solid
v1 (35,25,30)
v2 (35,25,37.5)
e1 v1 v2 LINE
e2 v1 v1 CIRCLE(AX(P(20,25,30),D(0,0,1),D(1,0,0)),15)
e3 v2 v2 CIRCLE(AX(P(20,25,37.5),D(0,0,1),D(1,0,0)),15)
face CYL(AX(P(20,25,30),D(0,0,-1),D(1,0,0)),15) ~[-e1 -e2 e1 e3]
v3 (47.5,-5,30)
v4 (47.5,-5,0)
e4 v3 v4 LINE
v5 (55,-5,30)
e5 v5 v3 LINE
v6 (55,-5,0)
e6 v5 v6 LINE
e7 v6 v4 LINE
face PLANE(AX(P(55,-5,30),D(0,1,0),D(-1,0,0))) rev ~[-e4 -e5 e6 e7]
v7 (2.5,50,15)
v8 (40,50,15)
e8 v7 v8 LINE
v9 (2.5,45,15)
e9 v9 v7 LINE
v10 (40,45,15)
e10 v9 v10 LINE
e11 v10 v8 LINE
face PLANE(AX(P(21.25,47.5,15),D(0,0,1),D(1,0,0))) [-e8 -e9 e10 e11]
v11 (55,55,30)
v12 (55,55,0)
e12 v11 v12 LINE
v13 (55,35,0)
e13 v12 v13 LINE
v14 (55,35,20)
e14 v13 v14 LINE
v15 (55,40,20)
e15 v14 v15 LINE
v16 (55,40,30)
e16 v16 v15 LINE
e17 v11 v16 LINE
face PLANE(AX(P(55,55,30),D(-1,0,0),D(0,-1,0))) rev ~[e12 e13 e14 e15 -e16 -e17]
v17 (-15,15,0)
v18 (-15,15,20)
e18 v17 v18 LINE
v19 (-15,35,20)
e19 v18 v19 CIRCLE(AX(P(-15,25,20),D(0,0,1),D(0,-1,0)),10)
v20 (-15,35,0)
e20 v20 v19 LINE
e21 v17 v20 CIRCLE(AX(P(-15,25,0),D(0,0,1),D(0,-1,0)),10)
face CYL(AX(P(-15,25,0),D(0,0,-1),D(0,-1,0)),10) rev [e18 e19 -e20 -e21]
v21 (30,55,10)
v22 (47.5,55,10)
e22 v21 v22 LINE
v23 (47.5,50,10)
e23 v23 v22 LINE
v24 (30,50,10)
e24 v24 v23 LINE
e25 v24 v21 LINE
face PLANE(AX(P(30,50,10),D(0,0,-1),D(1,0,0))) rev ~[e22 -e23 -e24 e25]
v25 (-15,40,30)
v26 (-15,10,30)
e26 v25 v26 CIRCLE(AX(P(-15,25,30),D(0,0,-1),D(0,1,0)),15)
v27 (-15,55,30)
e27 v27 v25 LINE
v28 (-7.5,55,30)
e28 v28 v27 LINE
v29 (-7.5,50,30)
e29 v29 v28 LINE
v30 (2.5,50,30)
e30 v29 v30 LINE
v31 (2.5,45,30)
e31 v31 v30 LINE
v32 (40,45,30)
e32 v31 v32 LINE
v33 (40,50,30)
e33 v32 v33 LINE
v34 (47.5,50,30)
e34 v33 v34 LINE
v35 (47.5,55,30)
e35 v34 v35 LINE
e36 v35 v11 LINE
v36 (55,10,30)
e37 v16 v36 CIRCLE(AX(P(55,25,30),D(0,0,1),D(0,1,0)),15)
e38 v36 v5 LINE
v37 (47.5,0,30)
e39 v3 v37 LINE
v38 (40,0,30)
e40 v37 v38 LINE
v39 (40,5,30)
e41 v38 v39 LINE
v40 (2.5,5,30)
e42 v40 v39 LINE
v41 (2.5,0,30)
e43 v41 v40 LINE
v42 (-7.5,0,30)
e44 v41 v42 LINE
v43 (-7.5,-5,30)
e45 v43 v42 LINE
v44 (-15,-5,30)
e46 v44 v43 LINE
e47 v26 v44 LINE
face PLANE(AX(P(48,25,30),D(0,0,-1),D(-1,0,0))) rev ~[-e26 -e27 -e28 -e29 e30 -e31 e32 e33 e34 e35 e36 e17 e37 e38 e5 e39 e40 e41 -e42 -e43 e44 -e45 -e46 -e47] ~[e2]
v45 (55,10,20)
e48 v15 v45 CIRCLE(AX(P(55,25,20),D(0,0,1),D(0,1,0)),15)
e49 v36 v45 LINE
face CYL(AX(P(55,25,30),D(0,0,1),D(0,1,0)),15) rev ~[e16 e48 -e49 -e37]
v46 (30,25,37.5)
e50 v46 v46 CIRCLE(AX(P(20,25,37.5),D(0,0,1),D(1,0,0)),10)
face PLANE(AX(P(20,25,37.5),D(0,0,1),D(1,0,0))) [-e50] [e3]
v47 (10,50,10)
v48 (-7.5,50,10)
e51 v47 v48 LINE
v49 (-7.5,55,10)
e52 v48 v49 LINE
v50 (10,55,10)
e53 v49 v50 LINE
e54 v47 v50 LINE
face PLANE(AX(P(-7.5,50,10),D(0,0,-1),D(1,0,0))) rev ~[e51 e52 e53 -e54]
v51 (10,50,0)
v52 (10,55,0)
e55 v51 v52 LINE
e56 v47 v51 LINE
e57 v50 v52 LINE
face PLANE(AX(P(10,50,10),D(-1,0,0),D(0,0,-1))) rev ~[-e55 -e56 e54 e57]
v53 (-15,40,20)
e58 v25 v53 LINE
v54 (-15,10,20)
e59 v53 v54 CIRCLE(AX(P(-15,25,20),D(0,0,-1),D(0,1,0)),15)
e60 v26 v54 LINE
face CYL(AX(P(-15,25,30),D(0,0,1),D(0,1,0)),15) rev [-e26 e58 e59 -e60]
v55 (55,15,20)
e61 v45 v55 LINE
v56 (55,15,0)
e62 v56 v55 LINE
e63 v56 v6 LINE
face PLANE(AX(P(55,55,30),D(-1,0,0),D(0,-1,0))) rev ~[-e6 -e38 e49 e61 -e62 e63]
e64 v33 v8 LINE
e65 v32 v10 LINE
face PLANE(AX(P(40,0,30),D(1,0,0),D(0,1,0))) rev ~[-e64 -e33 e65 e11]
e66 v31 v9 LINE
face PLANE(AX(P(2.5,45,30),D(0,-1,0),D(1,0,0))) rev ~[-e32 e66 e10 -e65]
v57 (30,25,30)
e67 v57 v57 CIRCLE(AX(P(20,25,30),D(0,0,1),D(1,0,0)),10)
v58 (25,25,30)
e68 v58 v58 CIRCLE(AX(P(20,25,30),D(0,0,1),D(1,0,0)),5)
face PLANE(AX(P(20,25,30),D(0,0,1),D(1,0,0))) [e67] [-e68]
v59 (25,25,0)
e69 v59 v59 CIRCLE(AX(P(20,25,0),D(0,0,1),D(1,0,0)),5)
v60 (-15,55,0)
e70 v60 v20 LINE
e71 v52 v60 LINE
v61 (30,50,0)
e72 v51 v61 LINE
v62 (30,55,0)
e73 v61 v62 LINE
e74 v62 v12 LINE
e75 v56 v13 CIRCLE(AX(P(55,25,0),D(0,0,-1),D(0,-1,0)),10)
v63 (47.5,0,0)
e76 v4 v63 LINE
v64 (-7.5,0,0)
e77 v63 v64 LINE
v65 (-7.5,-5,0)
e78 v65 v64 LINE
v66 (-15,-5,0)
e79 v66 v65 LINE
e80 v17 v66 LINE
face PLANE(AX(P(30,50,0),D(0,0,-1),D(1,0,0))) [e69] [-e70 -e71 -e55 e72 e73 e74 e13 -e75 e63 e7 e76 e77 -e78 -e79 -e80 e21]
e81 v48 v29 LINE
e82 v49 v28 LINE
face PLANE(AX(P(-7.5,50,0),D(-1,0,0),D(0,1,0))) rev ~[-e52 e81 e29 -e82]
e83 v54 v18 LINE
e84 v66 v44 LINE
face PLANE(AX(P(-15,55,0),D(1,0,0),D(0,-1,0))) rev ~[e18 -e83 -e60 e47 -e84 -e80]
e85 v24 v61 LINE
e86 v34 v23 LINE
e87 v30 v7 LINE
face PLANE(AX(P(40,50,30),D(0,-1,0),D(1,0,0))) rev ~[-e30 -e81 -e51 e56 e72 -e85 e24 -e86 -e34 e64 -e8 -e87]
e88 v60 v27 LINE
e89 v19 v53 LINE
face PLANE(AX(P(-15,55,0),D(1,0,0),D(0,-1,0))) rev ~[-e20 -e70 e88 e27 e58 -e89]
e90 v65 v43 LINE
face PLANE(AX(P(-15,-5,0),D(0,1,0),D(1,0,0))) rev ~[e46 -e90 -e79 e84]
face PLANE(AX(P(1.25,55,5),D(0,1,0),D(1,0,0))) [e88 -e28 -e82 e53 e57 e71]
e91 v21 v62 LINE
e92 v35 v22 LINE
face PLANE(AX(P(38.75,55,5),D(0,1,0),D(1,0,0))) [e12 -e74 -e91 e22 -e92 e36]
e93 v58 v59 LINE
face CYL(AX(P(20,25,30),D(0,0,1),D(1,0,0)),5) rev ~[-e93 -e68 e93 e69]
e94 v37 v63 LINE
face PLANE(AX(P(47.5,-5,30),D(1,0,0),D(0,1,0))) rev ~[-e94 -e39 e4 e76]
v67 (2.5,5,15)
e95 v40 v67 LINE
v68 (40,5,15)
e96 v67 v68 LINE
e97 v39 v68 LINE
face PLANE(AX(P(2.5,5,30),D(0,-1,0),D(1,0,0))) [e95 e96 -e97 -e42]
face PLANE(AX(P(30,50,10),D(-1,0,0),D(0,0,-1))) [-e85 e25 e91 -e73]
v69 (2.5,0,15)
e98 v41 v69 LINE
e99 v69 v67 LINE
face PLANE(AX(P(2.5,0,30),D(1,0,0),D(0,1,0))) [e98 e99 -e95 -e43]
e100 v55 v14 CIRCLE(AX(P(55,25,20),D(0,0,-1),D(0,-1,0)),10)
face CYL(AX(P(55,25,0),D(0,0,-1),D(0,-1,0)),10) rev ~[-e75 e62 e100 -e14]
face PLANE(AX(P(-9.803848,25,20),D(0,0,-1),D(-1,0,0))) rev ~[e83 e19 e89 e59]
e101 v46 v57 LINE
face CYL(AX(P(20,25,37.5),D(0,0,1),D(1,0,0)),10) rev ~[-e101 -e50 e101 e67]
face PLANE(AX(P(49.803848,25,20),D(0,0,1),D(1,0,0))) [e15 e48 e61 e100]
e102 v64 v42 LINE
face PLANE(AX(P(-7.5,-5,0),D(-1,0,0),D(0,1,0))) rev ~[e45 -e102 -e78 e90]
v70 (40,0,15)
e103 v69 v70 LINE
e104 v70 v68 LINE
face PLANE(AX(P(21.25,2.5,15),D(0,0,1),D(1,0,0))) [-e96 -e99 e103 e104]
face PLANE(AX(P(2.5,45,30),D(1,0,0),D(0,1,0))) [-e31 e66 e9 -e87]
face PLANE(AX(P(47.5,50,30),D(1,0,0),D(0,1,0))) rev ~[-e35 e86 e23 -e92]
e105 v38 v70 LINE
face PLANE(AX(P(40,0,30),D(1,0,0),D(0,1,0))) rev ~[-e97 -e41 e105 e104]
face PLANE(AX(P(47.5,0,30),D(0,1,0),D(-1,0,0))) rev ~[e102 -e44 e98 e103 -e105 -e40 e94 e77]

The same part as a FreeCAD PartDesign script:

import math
import FreeCAD as App
import Part
import Sketcher
from FreeCAD import Vector
Q = App.Units.Quantity


def add_polygon(sketch, points):
    """Adds a closed chain of lines whose ends are joined by coincident constraints."""
    first, n = sketch.GeometryCount, len(points)
    for a, b in zip(points, points[1:] + points[:1]):
        sketch.addGeometry(Part.LineSegment(App.Vector(*a, 0), App.Vector(*b, 0)), False)
    for i in range(n):
        sketch.addConstraint(Sketcher.Constraint("Coincident", first + i, 2, first + (i + 1) % n, 1))

doc = App.newDocument("Part")
params = doc.addObject("Spreadsheet::Sheet", "Params")
for row, (alias, value) in enumerate([
    ("sketch1_height", "5 mm"),
    ("sketch1_height2", "50 mm"),
    ("sketch1_width", "7.5 mm"),
    ("pad1_length", "30 mm"),
    ("sketch2_radius", "10 mm"),
    ("pocket1_length", "20 mm"),
    ("sketch3_height", "10 mm"),
    ("sketch3_width", "17.5 mm"),
    ("pad2_length", "5 mm"),
    ("sketch4_width", "40 mm"),
    ("sketch4_height", "50 mm"),
    ("pad3_length", "30 mm"),
    ("sketch5_height", "5 mm"),
    ("sketch5_width", "37.5 mm"),
    ("pocket2_length", "15 mm"),
    ("sketch6_height", "5 mm"),
    ("sketch6_width", "37.5 mm"),
    ("pocket3_length", "15 mm"),
    ("sketch7_radius", "15 mm"),
    ("pocket4_length", "10 mm"),
    ("sketch8_diameter", "30 mm"),
    ("pad4_length", "7.5 mm"),
    ("sketch9_diameter", "20 mm"),
    ("pocket5_length", "7.5 mm"),
    ("sketch10_diameter", "10 mm"),
    ("pocket6_length", "153.5 mm"),
    ("sketch11_height", "60 mm"),
    ("sketch11_height2", "5 mm"),
    ("sketch11_width", "7.5 mm"),
    ("pad5_length", "30 mm"),
    ("sketch12_height", "10 mm"),
    ("sketch12_width", "17.5 mm"),
    ("pad6_length", "5 mm"),
    ("sketch13_radius", "10 mm"),
    ("pocket7_length", "20 mm"),
    ("sketch14_radius", "15 mm"),
    ("pocket8_length", "10 mm"),
], start=1):
    params.set(f"A{row}", alias)
    params.set(f"B{row}", "=" + value)
    params.setAlias(f"B{row}", alias)

body = doc.addObject("PartDesign::Body", "Body")

# Sketch on XY plane
sketch1 = body.newObject("Sketcher::SketchObject", "Sketch")
sketch1.AttachmentSupport = (doc.getObject("XY_Plane"), [""])
sketch1.MapMode = "FlatFace"
add_polygon(sketch1, [(-15, -5), (-8, -5), (-8, 0), (0, 0), (0, 50), (-8, 50), (-8, 55), (-15, 55)])  # lines 0-7
sketch1.addConstraint(Sketcher.Constraint("Horizontal", 0))
sketch1.addConstraint(Sketcher.Constraint("Vertical", 1))
sketch1.addConstraint(Sketcher.Constraint("Horizontal", 2))
sketch1.addConstraint(Sketcher.Constraint("Vertical", 3))
sketch1.addConstraint(Sketcher.Constraint("Horizontal", 4))
sketch1.addConstraint(Sketcher.Constraint("Vertical", 5))
sketch1.addConstraint(Sketcher.Constraint("Horizontal", 6))
sketch1.addConstraint(Sketcher.Constraint("Vertical", 7))
sketch1.addConstraint(Sketcher.Constraint("Coincident", 2, 2, -1, 1))
sketch1.addConstraint(Sketcher.Constraint("Vertical", 1, 2, 4, 2))
sketch1.addConstraint(Sketcher.Constraint("Equal", 0, 2))
sketch1.addConstraint(Sketcher.Constraint("Equal", 1, 5))
sketch1.addConstraint(Sketcher.Constraint("DistanceY", 1, 1, 1, 2, Q("5 mm")))
sketch1.addConstraint(Sketcher.Constraint("DistanceY", 3, 1, 3, 2, Q("50 mm")))
sketch1.addConstraint(Sketcher.Constraint("DistanceX", 0, 1, 0, 2, Q("7.5 mm")))
sketch1.setExpression("Constraints[20]", "Params.sketch1_height")
sketch1.setExpression("Constraints[21]", "Params.sketch1_height2")
sketch1.setExpression("Constraints[22]", "Params.sketch1_width")
pad1 = body.newObject("PartDesign::Pad", "Pad")
pad1.Profile = sketch1
pad1.setExpression("Length", "Params.pad1_length")

# Sketch on XY plane
sketch2 = body.newObject("Sketcher::SketchObject", "Sketch001")
sketch2.AttachmentSupport = (doc.getObject("XY_Plane"), [""])
sketch2.MapMode = "FlatFace"
sketch2.addGeometry(Part.LineSegment(Vector(-15, 15, 0), Vector(-15, 35, 0)), False)
sketch2.addGeometry(Part.ArcOfCircle(Part.Circle(Vector(-15, 25, 0), Vector(0, 0, 1), 10), math.radians(-90), math.radians(90)), False)
sketch2.addConstraint(Sketcher.Constraint("Coincident", 0, 1, 1, 1))
sketch2.addConstraint(Sketcher.Constraint("Coincident", 1, 2, 0, 2))
sketch2.addConstraint(Sketcher.Constraint("Vertical", 0))
sketch2.addConstraint(Sketcher.Constraint("Vertical", 1, 3, 0, 1))
sketch2.addConstraint(Sketcher.Constraint("Radius", 1, Q("10 mm")))
sketch2.addConstraint(Sketcher.Constraint("DistanceX", 1, 3, -1, 1, Q("15 mm")))
sketch2.addConstraint(Sketcher.Constraint("DistanceY", -1, 1, 1, 3, Q("25 mm")))
sketch2.setExpression("Constraints[4]", "Params.sketch2_radius")
pocket1 = body.newObject("PartDesign::Pocket", "Pocket")
pocket1.Profile = sketch2
pocket1.setExpression("Length", "Params.pocket1_length")
pocket1.Reversed = True

# Sketch on XZ plane
sketch3 = body.newObject("Sketcher::SketchObject", "Sketch002")
sketch3.AttachmentSupport = (doc.getObject("XZ_Plane"), [""])
sketch3.MapMode = "FlatFace"
sketch3.AttachmentOffset = App.Placement(Vector(0, 0, -50), App.Rotation())
add_polygon(sketch3, [(-8, 0), (-8, 10), (10, 10), (10, 0)])  # lines 0-3
sketch3.addConstraint(Sketcher.Constraint("Vertical", 0))
sketch3.addConstraint(Sketcher.Constraint("Horizontal", 1))
sketch3.addConstraint(Sketcher.Constraint("Vertical", 2))
sketch3.addConstraint(Sketcher.Constraint("Horizontal", 3))
sketch3.addConstraint(Sketcher.Constraint("PointOnObject", 2, 2, -1))
sketch3.addConstraint(Sketcher.Constraint("DistanceY", 0, 1, 0, 2, Q("10 mm")))
sketch3.addConstraint(Sketcher.Constraint("DistanceX", 1, 1, 1, 2, Q("17.5 mm")))
sketch3.addConstraint(Sketcher.Constraint("DistanceX", -1, 1, 1, 2, Q("10 mm")))
sketch3.setExpression("Constraints[9]", "Params.sketch3_height")
sketch3.setExpression("Constraints[10]", "Params.sketch3_width")
pad2 = body.newObject("PartDesign::Pad", "Pad001")
pad2.Profile = sketch3
pad2.setExpression("Length", "Params.pad2_length")
pad2.Reversed = True

# Sketch on XY plane
sketch4 = body.newObject("Sketcher::SketchObject", "Sketch003")
sketch4.AttachmentSupport = (doc.getObject("XY_Plane"), [""])
sketch4.MapMode = "FlatFace"
add_polygon(sketch4, [(40, 50), (40, 0), (0, 0), (0, 50)])  # lines 0-3
sketch4.addConstraint(Sketcher.Constraint("Vertical", 0))
sketch4.addConstraint(Sketcher.Constraint("Horizontal", 1))
sketch4.addConstraint(Sketcher.Constraint("Vertical", 2))
sketch4.addConstraint(Sketcher.Constraint("Horizontal", 3))
sketch4.addConstraint(Sketcher.Constraint("Coincident", 1, 2, -1, 1))
sketch4.addConstraint(Sketcher.Constraint("DistanceX", 1, 2, 1, 1, Q("40 mm")))
sketch4.addConstraint(Sketcher.Constraint("DistanceY", 0, 2, 0, 1, Q("50 mm")))
sketch4.setExpression("Constraints[9]", "Params.sketch4_width")
sketch4.setExpression("Constraints[10]", "Params.sketch4_height")
pad3 = body.newObject("PartDesign::Pad", "Pad002")
pad3.Profile = sketch4
pad3.setExpression("Length", "Params.pad3_length")

# Sketch on XY plane
sketch5 = body.newObject("Sketcher::SketchObject", "Sketch004")
sketch5.AttachmentSupport = (doc.getObject("XY_Plane"), [""])
sketch5.MapMode = "FlatFace"
sketch5.AttachmentOffset = App.Placement(Vector(0, 0, 30), App.Rotation())
add_polygon(sketch5, [(2, 50), (2, 45), (40, 45), (40, 50)])  # lines 0-3
sketch5.addConstraint(Sketcher.Constraint("Vertical", 0))
sketch5.addConstraint(Sketcher.Constraint("Horizontal", 1))
sketch5.addConstraint(Sketcher.Constraint("Vertical", 2))
sketch5.addConstraint(Sketcher.Constraint("Horizontal", 3))
sketch5.addConstraint(Sketcher.Constraint("DistanceY", 0, 2, 0, 1, Q("5 mm")))
sketch5.addConstraint(Sketcher.Constraint("DistanceX", 1, 1, 1, 2, Q("37.5 mm")))
sketch5.addConstraint(Sketcher.Constraint("DistanceY", -1, 1, 0, 2, Q("45 mm")))
sketch5.addConstraint(Sketcher.Constraint("DistanceX", -1, 1, 1, 2, Q("40 mm")))
sketch5.setExpression("Constraints[8]", "Params.sketch5_height")
sketch5.setExpression("Constraints[9]", "Params.sketch5_width")
pocket2 = body.newObject("PartDesign::Pocket", "Pocket001")
pocket2.Profile = sketch5
pocket2.setExpression("Length", "Params.pocket2_length")

# Sketch on XY plane
sketch6 = body.newObject("Sketcher::SketchObject", "Sketch005")
sketch6.AttachmentSupport = (doc.getObject("XY_Plane"), [""])
sketch6.MapMode = "FlatFace"
sketch6.AttachmentOffset = App.Placement(Vector(0, 0, 30), App.Rotation())
add_polygon(sketch6, [(2, 5), (2, 0), (40, 0), (40, 5)])  # lines 0-3
sketch6.addConstraint(Sketcher.Constraint("Vertical", 0))
sketch6.addConstraint(Sketcher.Constraint("Horizontal", 1))
sketch6.addConstraint(Sketcher.Constraint("Vertical", 2))
sketch6.addConstraint(Sketcher.Constraint("Horizontal", 3))
sketch6.addConstraint(Sketcher.Constraint("PointOnObject", 0, 2, -1))
sketch6.addConstraint(Sketcher.Constraint("DistanceY", 0, 2, 0, 1, Q("5 mm")))
sketch6.addConstraint(Sketcher.Constraint("DistanceX", 1, 1, 1, 2, Q("37.5 mm")))
sketch6.addConstraint(Sketcher.Constraint("DistanceX", -1, 1, 1, 2, Q("40 mm")))
sketch6.setExpression("Constraints[9]", "Params.sketch6_height")
sketch6.setExpression("Constraints[10]", "Params.sketch6_width")
pocket3 = body.newObject("PartDesign::Pocket", "Pocket002")
pocket3.Profile = sketch6
pocket3.setExpression("Length", "Params.pocket3_length")

# Sketch on XY plane
sketch7 = body.newObject("Sketcher::SketchObject", "Sketch006")
sketch7.AttachmentSupport = (doc.getObject("XY_Plane"), [""])
sketch7.MapMode = "FlatFace"
sketch7.AttachmentOffset = App.Placement(Vector(0, 0, 30), App.Rotation())
sketch7.addGeometry(Part.LineSegment(Vector(-15, 40, 0), Vector(-15, 10, 0)), False)
sketch7.addGeometry(Part.ArcOfCircle(Part.Circle(Vector(-15, 25, 0), Vector(0, 0, 1), 15), math.radians(-90), math.radians(90)), False)
sketch7.addConstraint(Sketcher.Constraint("Coincident", 0, 1, 1, 2))
sketch7.addConstraint(Sketcher.Constraint("Coincident", 1, 1, 0, 2))
sketch7.addConstraint(Sketcher.Constraint("Vertical", 0))
sketch7.addConstraint(Sketcher.Constraint("Vertical", 1, 3, 0, 1))
sketch7.addConstraint(Sketcher.Constraint("Radius", 1, Q("15 mm")))
sketch7.addConstraint(Sketcher.Constraint("DistanceX", 1, 3, -1, 1, Q("15 mm")))
sketch7.addConstraint(Sketcher.Constraint("DistanceY", -1, 1, 1, 3, Q("25 mm")))
sketch7.setExpression("Constraints[4]", "Params.sketch7_radius")
pocket4 = body.newObject("PartDesign::Pocket", "Pocket003")
pocket4.Profile = sketch7
pocket4.setExpression("Length", "Params.pocket4_length")

# Sketch on XY plane
sketch8 = body.newObject("Sketcher::SketchObject", "Sketch007")
sketch8.AttachmentSupport = (doc.getObject("XY_Plane"), [""])
sketch8.MapMode = "FlatFace"
sketch8.AttachmentOffset = App.Placement(Vector(0, 0, 30), App.Rotation())
sketch8.addGeometry(Part.Circle(Vector(20, 25, 0), Vector(0, 0, 1), 15), False)
sketch8.addConstraint(Sketcher.Constraint("Diameter", 0, Q("30 mm")))
sketch8.addConstraint(Sketcher.Constraint("DistanceX", -1, 1, 0, 3, Q("20 mm")))
sketch8.addConstraint(Sketcher.Constraint("DistanceY", -1, 1, 0, 3, Q("25 mm")))
sketch8.setExpression("Constraints[0]", "Params.sketch8_diameter")
pad4 = body.newObject("PartDesign::Pad", "Pad003")
pad4.Profile = sketch8
pad4.setExpression("Length", "Params.pad4_length")

# Sketch on XY plane
sketch9 = body.newObject("Sketcher::SketchObject", "Sketch008")
sketch9.AttachmentSupport = (doc.getObject("XY_Plane"), [""])
sketch9.MapMode = "FlatFace"
sketch9.AttachmentOffset = App.Placement(Vector(0, 0, 37.5), App.Rotation())
sketch9.addGeometry(Part.Circle(Vector(20, 25, 0), Vector(0, 0, 1), 10), False)
sketch9.addConstraint(Sketcher.Constraint("Diameter", 0, Q("20 mm")))
sketch9.addConstraint(Sketcher.Constraint("DistanceX", -1, 1, 0, 3, Q("20 mm")))
sketch9.addConstraint(Sketcher.Constraint("DistanceY", -1, 1, 0, 3, Q("25 mm")))
sketch9.setExpression("Constraints[0]", "Params.sketch9_diameter")
pocket5 = body.newObject("PartDesign::Pocket", "Pocket004")
pocket5.Profile = sketch9
pocket5.setExpression("Length", "Params.pocket5_length")

# Sketch on XY plane
sketch10 = body.newObject("Sketcher::SketchObject", "Sketch009")
sketch10.AttachmentSupport = (doc.getObject("XY_Plane"), [""])
sketch10.MapMode = "FlatFace"
sketch10.AttachmentOffset = App.Placement(Vector(0, 0, 30), App.Rotation())
sketch10.addGeometry(Part.Circle(Vector(20, 25, 0), Vector(0, 0, 1), 5), False)
sketch10.addConstraint(Sketcher.Constraint("Diameter", 0, Q("10 mm")))
sketch10.addConstraint(Sketcher.Constraint("DistanceX", -1, 1, 0, 3, Q("20 mm")))
sketch10.addConstraint(Sketcher.Constraint("DistanceY", -1, 1, 0, 3, Q("25 mm")))
sketch10.setExpression("Constraints[0]", "Params.sketch10_diameter")
pocket6 = body.newObject("PartDesign::Pocket", "Pocket005")
pocket6.Profile = sketch10
pocket6.setExpression("Length", "Params.pocket6_length")

# Sketch on XY plane
sketch11 = body.newObject("Sketcher::SketchObject", "Sketch010")
sketch11.AttachmentSupport = (doc.getObject("XY_Plane"), [""])
sketch11.MapMode = "FlatFace"
sketch11.AttachmentOffset = App.Placement(Vector(0, 0, 30), App.Rotation())
add_polygon(sketch11, [(48, -5), (55, -5), (55, 55), (48, 55), (48, 50), (40, 50), (40, 0), (48, 0)])  # lines 0-7
sketch11.addConstraint(Sketcher.Constraint("Horizontal", 0))
sketch11.addConstraint(Sketcher.Constraint("Vertical", 1))
sketch11.addConstraint(Sketcher.Constraint("Horizontal", 2))
sketch11.addConstraint(Sketcher.Constraint("Vertical", 3))
sketch11.addConstraint(Sketcher.Constraint("Horizontal", 4))
sketch11.addConstraint(Sketcher.Constraint("Vertical", 5))
sketch11.addConstraint(Sketcher.Constraint("Horizontal", 6))
sketch11.addConstraint(Sketcher.Constraint("Vertical", 7))
sketch11.addConstraint(Sketcher.Constraint("PointOnObject", 5, 2, -1))
sketch11.addConstraint(Sketcher.Constraint("Vertical", 3, 2, 6, 2))
sketch11.addConstraint(Sketcher.Constraint("Equal", 2, 4))
sketch11.addConstraint(Sketcher.Constraint("Equal", 3, 7))
sketch11.addConstraint(Sketcher.Constraint("DistanceY", 1, 1, 1, 2, Q("60 mm")))
sketch11.addConstraint(Sketcher.Constraint("DistanceY", 3, 2, 3, 1, Q("5 mm")))
sketch11.addConstraint(Sketcher.Constraint("DistanceX", 0, 1, 0, 2, Q("7.5 mm")))
sketch11.addConstraint(Sketcher.Constraint("DistanceX", -1, 1, 0, 2, Q("55 mm")))
sketch11.setExpression("Constraints[20]", "Params.sketch11_height")
sketch11.setExpression("Constraints[21]", "Params.sketch11_height2")
sketch11.setExpression("Constraints[22]", "Params.sketch11_width")
pad5 = body.newObject("PartDesign::Pad", "Pad004")
pad5.Profile = sketch11
pad5.setExpression("Length", "Params.pad5_length")
pad5.Reversed = True

# Sketch on XZ plane
sketch12 = body.newObject("Sketcher::SketchObject", "Sketch011")
sketch12.AttachmentSupport = (doc.getObject("XZ_Plane"), [""])
sketch12.MapMode = "FlatFace"
sketch12.AttachmentOffset = App.Placement(Vector(0, 0, -50), App.Rotation())
add_polygon(sketch12, [(30, 0), (30, 10), (48, 10), (48, 0)])  # lines 0-3
sketch12.addConstraint(Sketcher.Constraint("Vertical", 0))
sketch12.addConstraint(Sketcher.Constraint("Horizontal", 1))
sketch12.addConstraint(Sketcher.Constraint("Vertical", 2))
sketch12.addConstraint(Sketcher.Constraint("Horizontal", 3))
sketch12.addConstraint(Sketcher.Constraint("PointOnObject", 2, 2, -1))
sketch12.addConstraint(Sketcher.Constraint("DistanceY", 0, 1, 0, 2, Q("10 mm")))
sketch12.addConstraint(Sketcher.Constraint("DistanceX", 1, 1, 1, 2, Q("17.5 mm")))
sketch12.addConstraint(Sketcher.Constraint("DistanceX", -1, 1, 0, 2, Q("30 mm")))
sketch12.setExpression("Constraints[9]", "Params.sketch12_height")
sketch12.setExpression("Constraints[10]", "Params.sketch12_width")
pad6 = body.newObject("PartDesign::Pad", "Pad005")
pad6.Profile = sketch12
pad6.setExpression("Length", "Params.pad6_length")
pad6.Reversed = True

# Sketch on XY plane
sketch13 = body.newObject("Sketcher::SketchObject", "Sketch012")
sketch13.AttachmentSupport = (doc.getObject("XY_Plane"), [""])
sketch13.MapMode = "FlatFace"
sketch13.addGeometry(Part.LineSegment(Vector(55, 35, 0), Vector(55, 15, 0)), False)
sketch13.addGeometry(Part.ArcOfCircle(Part.Circle(Vector(55, 25, 0), Vector(0, 0, 1), 10), math.radians(90), math.radians(270)), False)
sketch13.addConstraint(Sketcher.Constraint("Coincident", 0, 1, 1, 1))
sketch13.addConstraint(Sketcher.Constraint("Coincident", 1, 2, 0, 2))
sketch13.addConstraint(Sketcher.Constraint("Vertical", 0))
sketch13.addConstraint(Sketcher.Constraint("Vertical", 1, 3, 0, 1))
sketch13.addConstraint(Sketcher.Constraint("Radius", 1, Q("10 mm")))
sketch13.addConstraint(Sketcher.Constraint("DistanceX", -1, 1, 1, 3, Q("55 mm")))
sketch13.addConstraint(Sketcher.Constraint("DistanceY", -1, 1, 1, 3, Q("25 mm")))
sketch13.setExpression("Constraints[4]", "Params.sketch13_radius")
pocket7 = body.newObject("PartDesign::Pocket", "Pocket006")
pocket7.Profile = sketch13
pocket7.setExpression("Length", "Params.pocket7_length")
pocket7.Reversed = True

# Sketch on XY plane
sketch14 = body.newObject("Sketcher::SketchObject", "Sketch013")
sketch14.AttachmentSupport = (doc.getObject("XY_Plane"), [""])
sketch14.MapMode = "FlatFace"
sketch14.AttachmentOffset = App.Placement(Vector(0, 0, 30), App.Rotation())
sketch14.addGeometry(Part.LineSegment(Vector(55, 10, 0), Vector(55, 40, 0)), False)
sketch14.addGeometry(Part.ArcOfCircle(Part.Circle(Vector(55, 25, 0), Vector(0, 0, 1), 15), math.radians(90), math.radians(270)), False)
sketch14.addConstraint(Sketcher.Constraint("Coincident", 0, 1, 1, 2))
sketch14.addConstraint(Sketcher.Constraint("Coincident", 1, 1, 0, 2))
sketch14.addConstraint(Sketcher.Constraint("Vertical", 0))
sketch14.addConstraint(Sketcher.Constraint("Vertical", 1, 3, 0, 1))
sketch14.addConstraint(Sketcher.Constraint("Radius", 1, Q("15 mm")))
sketch14.addConstraint(Sketcher.Constraint("DistanceX", -1, 1, 1, 3, Q("55 mm")))
sketch14.addConstraint(Sketcher.Constraint("DistanceY", -1, 1, 1, 3, Q("25 mm")))
sketch14.setExpression("Constraints[4]", "Params.sketch14_radius")
pocket8 = body.newObject("PartDesign::Pocket", "Pocket007")
pocket8.Profile = sketch14
pocket8.setExpression("Length", "Params.pocket8_length")

doc.recompute()
